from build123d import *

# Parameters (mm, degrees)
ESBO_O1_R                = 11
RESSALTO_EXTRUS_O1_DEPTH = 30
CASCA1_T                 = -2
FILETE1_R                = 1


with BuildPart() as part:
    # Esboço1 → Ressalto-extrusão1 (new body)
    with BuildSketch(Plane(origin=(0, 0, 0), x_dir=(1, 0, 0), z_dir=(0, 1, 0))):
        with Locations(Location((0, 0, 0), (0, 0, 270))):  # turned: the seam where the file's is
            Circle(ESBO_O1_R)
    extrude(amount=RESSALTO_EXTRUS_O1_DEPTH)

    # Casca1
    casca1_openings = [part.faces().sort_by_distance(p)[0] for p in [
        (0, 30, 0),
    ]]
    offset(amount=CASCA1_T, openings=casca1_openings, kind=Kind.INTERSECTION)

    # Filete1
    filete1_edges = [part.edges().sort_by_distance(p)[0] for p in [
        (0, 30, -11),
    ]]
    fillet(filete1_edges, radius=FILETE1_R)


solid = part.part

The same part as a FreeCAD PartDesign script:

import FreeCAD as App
import Part
import Sketcher


def edges_at(feature, points):
    """Names of the edges that pass closest to the given points."""
    edges = feature.Shape.Edges
    near = lambda p: min(range(len(edges)), key=lambda i: edges[i].distToShape(Part.Vertex(*p))[0])
    return sorted({f"Edge{near(p) + 1}" for p in points})


def faces_at(feature, points):
    """Names of the faces that lie closest to the given points."""
    faces = feature.Shape.Faces
    near = lambda p: min(range(len(faces)), key=lambda i: faces[i].distToShape(Part.Vertex(*p))[0])
    return sorted({f"Face{near(p) + 1}" for p in points})

doc = App.newDocument("Part")
body = doc.addObject("PartDesign::Body", "Body")

# Sketch on XZ plane
sketch1 = body.newObject("Sketcher::SketchObject", "Sketch")
sketch1.AttachmentSupport = (doc.getObject("XZ_Plane"), [""])
sketch1.MapMode = "FlatFace"
sketch1.addGeometry(Part.Circle(App.Vector(0, 0, 0), App.Vector(0, 0, 1), 11), False)
sketch1.addConstraint(Sketcher.Constraint("Coincident", 0, 3, -1, 1))
sketch1.addConstraint(Sketcher.Constraint("Diameter", 0, 22.0))
pad1 = body.newObject("PartDesign::Pad", "Pad")
pad1.Profile = sketch1
pad1.Length = 30
pad1.Reversed = True
doc.recompute()

thickness = body.newObject("PartDesign::Thickness", "Thickness")
thickness.Base = (pad1, faces_at(pad1, [(0, 30, 0)]))
thickness.Value = 2
thickness.Reversed = True
thickness.Join = "Intersection"
doc.recompute()

fillet = body.newObject("PartDesign::Fillet", "Fillet")
fillet.Base = (thickness, edges_at(thickness, [(0, 30, -11)]))
fillet.Radius = 1

doc.recompute()
